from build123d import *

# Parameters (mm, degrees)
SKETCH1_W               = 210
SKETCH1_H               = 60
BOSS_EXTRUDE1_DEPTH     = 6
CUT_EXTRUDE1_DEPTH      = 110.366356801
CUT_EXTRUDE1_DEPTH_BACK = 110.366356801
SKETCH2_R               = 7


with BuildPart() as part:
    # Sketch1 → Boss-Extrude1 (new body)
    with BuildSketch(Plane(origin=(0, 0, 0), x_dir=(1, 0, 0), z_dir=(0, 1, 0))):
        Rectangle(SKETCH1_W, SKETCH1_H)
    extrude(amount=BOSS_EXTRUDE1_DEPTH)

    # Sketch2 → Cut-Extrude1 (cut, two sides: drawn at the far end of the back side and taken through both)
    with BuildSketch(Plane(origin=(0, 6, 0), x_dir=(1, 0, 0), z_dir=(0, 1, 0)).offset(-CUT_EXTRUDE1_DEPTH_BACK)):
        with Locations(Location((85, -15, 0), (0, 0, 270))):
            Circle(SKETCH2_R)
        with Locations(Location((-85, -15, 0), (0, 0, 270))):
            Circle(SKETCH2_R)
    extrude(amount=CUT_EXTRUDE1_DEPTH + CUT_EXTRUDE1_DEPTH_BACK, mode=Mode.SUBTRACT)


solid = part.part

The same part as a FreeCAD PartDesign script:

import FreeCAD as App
import Part
import Sketcher

doc = App.newDocument("Part")
body = doc.addObject("PartDesign::Body", "Body")

# Sketch on XZ plane
sketch1 = body.newObject("Sketcher::SketchObject", "Sketch")
sketch1.AttachmentSupport = (doc.getObject("XZ_Plane"), [""])
sketch1.MapMode = "FlatFace"
sketch1.addGeometry([
    Part.LineSegment(App.Vector(-105, -30, 0), App.Vector(-105, 30, 0)),
    Part.LineSegment(App.Vector(-105, 30, 0), App.Vector(105, 30, 0)),
    Part.LineSegment(App.Vector(105, 30, 0), App.Vector(105, -30, 0)),
    Part.LineSegment(App.Vector(105, -30, 0), App.Vector(-105, -30, 0)),
], False)
sketch1.addConstraint([
    Sketcher.Constraint("Coincident", 0, 2, 1, 1),
    Sketcher.Constraint("Coincident", 1, 2, 2, 1),
    Sketcher.Constraint("Coincident", 2, 2, 3, 1),
    Sketcher.Constraint("Coincident", 3, 2, 0, 1),
    Sketcher.Constraint("Vertical", 0),
    Sketcher.Constraint("Horizontal", 1),
    Sketcher.Constraint("Vertical", 2),
    Sketcher.Constraint("Horizontal", 3),
    Sketcher.Constraint("Symmetric", 0, 2, 2, 2, -1, 1),
    Sketcher.Constraint("DistanceX", 1, 1, 1, 2, 210.0),
    Sketcher.Constraint("DistanceY", 0, 1, 0, 2, 60.0),
])
pad1 = body.newObject("PartDesign::Pad", "Pad")
pad1.Profile = sketch1
pad1.Length = 6
pad1.Reversed = True

# Sketch on XZ plane
sketch2 = body.newObject("Sketcher::SketchObject", "Sketch001")
sketch2.AttachmentSupport = (doc.getObject("XZ_Plane"), [""])
sketch2.MapMode = "FlatFace"
sketch2.AttachmentOffset = App.Placement(App.Vector(0, 0, -6), App.Rotation())
sketch2.addGeometry([
    Part.Circle(App.Vector(85, 15, 0), App.Vector(0, 0, 1), 7),
    Part.Circle(App.Vector(-85, 15, 0), App.Vector(0, 0, 1), 7),
], False)
sketch2.addConstraint([
    Sketcher.Constraint("Equal", 0, 1),
    Sketcher.Constraint("Symmetric", 0, 3, 1, 3, -2),
    Sketcher.Constraint("Diameter", 0, 14.0),
    Sketcher.Constraint("DistanceX", -1, 1, 0, 3, 85.0),
    Sketcher.Constraint("DistanceY", -1, 1, 0, 3, 15.0),
])
pocket1 = body.newObject("PartDesign::Pocket", "Pocket")
pocket1.Profile = sketch2
pocket1.Type = "ThroughAll"
pocket1.Midplane = True

doc.recompute()
